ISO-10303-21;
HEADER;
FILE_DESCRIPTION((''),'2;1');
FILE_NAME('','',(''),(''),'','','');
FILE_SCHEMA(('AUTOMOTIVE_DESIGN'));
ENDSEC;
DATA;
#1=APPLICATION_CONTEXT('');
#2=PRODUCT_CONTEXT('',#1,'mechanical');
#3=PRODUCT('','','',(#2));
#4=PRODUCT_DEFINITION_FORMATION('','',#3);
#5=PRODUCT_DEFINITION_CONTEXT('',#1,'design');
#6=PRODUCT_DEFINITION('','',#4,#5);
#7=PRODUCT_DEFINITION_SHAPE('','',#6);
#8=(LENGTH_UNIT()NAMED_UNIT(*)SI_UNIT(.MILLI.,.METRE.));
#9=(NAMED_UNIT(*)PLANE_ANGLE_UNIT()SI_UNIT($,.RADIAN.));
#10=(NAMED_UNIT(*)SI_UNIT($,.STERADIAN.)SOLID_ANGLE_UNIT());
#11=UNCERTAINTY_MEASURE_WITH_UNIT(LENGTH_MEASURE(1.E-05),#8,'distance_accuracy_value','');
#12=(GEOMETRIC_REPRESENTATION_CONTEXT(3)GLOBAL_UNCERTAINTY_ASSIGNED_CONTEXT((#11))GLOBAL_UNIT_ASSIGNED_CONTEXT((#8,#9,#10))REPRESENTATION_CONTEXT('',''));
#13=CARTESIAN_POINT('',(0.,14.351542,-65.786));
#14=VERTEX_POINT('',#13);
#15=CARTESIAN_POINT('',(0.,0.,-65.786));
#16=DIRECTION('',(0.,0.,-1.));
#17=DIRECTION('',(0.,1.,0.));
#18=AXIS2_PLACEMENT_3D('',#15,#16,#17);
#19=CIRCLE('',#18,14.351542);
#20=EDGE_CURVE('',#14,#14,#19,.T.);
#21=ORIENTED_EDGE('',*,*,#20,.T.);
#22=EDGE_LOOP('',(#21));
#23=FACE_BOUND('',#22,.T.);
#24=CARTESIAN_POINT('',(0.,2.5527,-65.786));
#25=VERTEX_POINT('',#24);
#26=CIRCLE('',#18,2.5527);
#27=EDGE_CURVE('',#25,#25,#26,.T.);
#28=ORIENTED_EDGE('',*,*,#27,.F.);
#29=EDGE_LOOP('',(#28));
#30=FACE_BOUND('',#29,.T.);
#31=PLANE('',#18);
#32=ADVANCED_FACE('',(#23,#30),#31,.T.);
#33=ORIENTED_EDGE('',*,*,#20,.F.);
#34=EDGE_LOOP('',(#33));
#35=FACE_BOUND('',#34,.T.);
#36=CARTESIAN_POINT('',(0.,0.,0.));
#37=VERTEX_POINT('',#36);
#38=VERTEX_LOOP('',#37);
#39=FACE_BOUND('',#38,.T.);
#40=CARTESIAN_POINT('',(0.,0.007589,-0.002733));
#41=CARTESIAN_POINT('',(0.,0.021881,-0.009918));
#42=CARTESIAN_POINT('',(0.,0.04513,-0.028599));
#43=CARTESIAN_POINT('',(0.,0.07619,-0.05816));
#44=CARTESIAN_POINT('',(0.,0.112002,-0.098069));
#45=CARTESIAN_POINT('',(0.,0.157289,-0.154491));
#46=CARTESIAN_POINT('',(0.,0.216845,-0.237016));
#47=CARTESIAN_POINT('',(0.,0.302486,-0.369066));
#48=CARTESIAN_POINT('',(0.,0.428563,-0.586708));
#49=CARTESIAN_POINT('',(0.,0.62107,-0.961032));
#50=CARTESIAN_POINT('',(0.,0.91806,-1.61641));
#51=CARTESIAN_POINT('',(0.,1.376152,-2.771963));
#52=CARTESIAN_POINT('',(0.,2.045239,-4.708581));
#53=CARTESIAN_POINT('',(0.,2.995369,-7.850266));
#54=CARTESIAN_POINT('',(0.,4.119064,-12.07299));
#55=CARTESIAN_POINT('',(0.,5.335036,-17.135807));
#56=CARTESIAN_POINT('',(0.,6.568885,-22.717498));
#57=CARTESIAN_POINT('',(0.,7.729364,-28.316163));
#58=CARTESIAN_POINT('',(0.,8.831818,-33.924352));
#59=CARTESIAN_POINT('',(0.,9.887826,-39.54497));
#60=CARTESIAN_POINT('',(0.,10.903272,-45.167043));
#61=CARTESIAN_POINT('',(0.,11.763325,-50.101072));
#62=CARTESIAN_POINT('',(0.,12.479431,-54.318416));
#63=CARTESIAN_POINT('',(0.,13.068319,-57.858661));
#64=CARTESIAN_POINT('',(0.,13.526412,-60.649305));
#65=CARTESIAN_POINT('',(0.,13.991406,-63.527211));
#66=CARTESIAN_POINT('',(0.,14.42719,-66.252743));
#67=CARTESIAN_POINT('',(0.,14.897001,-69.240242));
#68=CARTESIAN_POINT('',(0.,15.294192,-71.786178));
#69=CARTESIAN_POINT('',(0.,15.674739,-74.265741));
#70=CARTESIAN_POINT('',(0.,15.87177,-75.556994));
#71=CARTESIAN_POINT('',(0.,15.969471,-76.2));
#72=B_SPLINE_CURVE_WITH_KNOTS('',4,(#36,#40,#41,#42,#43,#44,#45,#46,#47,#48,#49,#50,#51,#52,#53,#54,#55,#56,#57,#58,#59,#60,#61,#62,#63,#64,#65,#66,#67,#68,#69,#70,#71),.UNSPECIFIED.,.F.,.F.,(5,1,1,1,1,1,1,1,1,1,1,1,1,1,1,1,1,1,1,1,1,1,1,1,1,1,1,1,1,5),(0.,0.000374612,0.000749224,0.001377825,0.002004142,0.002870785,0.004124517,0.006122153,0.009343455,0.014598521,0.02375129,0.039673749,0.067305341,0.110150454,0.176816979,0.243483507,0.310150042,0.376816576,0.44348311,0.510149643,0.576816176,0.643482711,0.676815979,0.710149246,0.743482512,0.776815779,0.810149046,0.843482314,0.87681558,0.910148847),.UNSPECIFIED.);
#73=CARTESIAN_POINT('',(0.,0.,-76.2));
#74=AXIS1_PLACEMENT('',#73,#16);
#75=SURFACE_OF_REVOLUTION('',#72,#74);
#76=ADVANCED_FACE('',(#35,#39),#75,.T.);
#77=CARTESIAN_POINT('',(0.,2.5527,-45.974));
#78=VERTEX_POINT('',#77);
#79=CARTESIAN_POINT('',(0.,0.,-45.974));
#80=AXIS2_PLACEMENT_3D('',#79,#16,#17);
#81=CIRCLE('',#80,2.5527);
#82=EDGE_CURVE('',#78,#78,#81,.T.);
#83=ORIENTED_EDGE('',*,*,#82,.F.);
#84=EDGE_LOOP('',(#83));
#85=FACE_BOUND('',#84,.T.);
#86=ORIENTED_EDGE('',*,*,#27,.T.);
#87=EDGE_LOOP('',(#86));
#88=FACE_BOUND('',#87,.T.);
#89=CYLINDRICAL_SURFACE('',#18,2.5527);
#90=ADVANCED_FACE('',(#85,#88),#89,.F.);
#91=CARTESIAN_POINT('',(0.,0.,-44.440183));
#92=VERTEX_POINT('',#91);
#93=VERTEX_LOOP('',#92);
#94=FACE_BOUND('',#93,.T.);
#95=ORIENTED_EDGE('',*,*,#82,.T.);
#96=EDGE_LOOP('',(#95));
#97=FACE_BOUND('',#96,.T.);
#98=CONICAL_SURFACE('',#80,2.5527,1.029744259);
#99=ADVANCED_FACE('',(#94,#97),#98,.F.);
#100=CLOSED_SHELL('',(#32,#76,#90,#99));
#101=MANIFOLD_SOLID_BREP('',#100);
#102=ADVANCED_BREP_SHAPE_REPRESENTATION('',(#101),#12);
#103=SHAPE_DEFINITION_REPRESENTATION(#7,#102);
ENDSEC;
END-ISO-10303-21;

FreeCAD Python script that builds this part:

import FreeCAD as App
import Part
import Sketcher

V = App.Vector
Q = App.Units.Quantity

doc = App.newDocument("Part")
body = doc.addObject("PartDesign::Body", "Body")

sketch1 = body.newObject("Sketcher::SketchObject", "Sketch")
sketch1.AttachmentSupport = (doc.getObject("YZ_Plane"), [""])
sketch1.MapMode = "FlatFace"
sketch1.addGeometry(Part.LineSegment(V(0, -65.786, 0), V(14.351542, -65.786, 0)), False)
sketch1.addGeometry(Part.BSplineCurve([V(0, 0, 0), V(0.007589, -0.002733, 0), V(0.021881, -0.009918, 0), V(0.04513, -0.028599, 0), V(0.07619, -0.05816, 0), V(0.112002, -0.098069, 0), V(0.157289, -0.154491, 0), V(0.216845, -0.237016, 0), V(0.302486, -0.369066, 0), V(0.428563, -0.586708, 0), V(0.62107, -0.961032, 0), V(0.91806, -1.61641, 0), V(1.376152, -2.771963, 0), V(2.045239, -4.708581, 0), V(2.995369, -7.850266, 0), V(4.119064, -12.07299, 0), V(5.335036, -17.135807, 0), V(6.568885, -22.717498, 0), V(7.729364, -28.316163, 0), V(8.831818, -33.924352, 0), V(9.887826, -39.54497, 0), V(10.903272, -45.167043, 0), V(11.763325, -50.101072, 0), V(12.479431, -54.318416, 0), V(13.068319, -57.858661, 0), V(13.526412, -60.649305, 0), V(13.912053, -63.036086, 0), V(14.168373, -64.635199, 0), V(14.315886, -65.561696, 0), V(14.351542, -65.786, 0)], [5, 1, 1, 1, 1, 1, 1, 1, 1, 1, 1, 1, 1, 1, 1, 1, 1, 1, 1, 1, 1, 1, 1, 1, 1, 1, 5], [0, 0.000374612, 0.000749224, 0.001377825, 0.002004142, 0.002870785, 0.004124517, 0.006122153, 0.009343455, 0.014598521, 0.02375129, 0.039673749, 0.067305341, 0.110150454, 0.176816979, 0.243483507, 0.310150042, 0.376816576, 0.44348311, 0.510149643, 0.576816176, 0.643482711, 0.676815979, 0.710149246, 0.743482512, 0.776815779, 0.787395269], False, 4, [1, 1, 1, 1, 1, 1, 1, 1, 1, 1, 1, 1, 1, 1, 1, 1, 1, 1, 1, 1, 1, 1, 1, 1, 1, 1, 1, 1, 1, 1], False), False)
sketch1.addGeometry(Part.LineSegment(V(0, 0, 0), V(0, -65.786, 0)), False)
sketch1.addConstraint(Sketcher.Constraint("Block", 1))
sketch1.addConstraint(Sketcher.Constraint("Coincident", 0, 2, 1, 2))
sketch1.addConstraint(Sketcher.Constraint("Coincident", 1, 1, 2, 1))
sketch1.addConstraint(Sketcher.Constraint("Coincident", 2, 2, 0, 1))
sketch1.addConstraint(Sketcher.Constraint("Horizontal", 0))
sketch1.addConstraint(Sketcher.Constraint("Vertical", 2))
revolution = body.newObject("PartDesign::Revolution", "Revolution")
revolution.Profile = sketch1
revolution.ReferenceAxis = (sketch1, ["V_Axis"])
revolution.Angle = 360

sketch2 = body.newObject("Sketcher::SketchObject", "Sketch001")
sketch2.AttachmentSupport = (doc.getObject("XY_Plane"), [""])
sketch2.MapMode = "FlatFace"
sketch2.AttachmentOffset = App.Placement(V(0, 0, -2.59 * 25.4), App.Rotation())
sketch2.addGeometry(Part.Circle(V(0, 0, 0), V(0, 0, 1), 2.6), False)
sketch2.addConstraint(Sketcher.Constraint("Coincident", 0, 3, -1, 1))
sketch2.addConstraint(Sketcher.Constraint("Diameter", 0, Q("0.201 in")))
doc.recompute()
hole = body.newObject("PartDesign::Hole", "Hole")
hole.Profile = sketch2
hole.ThreadType = "None"
hole.Diameter = Q("0.201 in")
hole.DepthType = "Dimension"
hole.Depth = Q("0.78 in")
hole.DrillPoint = "Angled"
hole.DrillPointAngle = 118
hole.Reversed = True

doc.recompute()
